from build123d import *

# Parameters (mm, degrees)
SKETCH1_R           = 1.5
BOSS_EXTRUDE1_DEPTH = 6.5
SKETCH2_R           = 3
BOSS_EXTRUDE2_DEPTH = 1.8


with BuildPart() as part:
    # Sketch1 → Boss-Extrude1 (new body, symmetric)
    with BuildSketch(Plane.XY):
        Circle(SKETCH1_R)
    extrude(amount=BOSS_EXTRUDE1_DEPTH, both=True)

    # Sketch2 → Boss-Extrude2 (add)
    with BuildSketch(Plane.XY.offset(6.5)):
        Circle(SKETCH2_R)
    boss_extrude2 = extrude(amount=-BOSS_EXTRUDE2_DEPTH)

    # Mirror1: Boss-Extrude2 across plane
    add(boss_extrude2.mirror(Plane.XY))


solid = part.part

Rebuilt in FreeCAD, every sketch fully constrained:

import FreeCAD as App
import Part
import Sketcher
Q = App.Units.Quantity

doc = App.newDocument("Part")
body = doc.addObject("PartDesign::Body", "Body")

# Sketch on XY plane
sketch1 = body.newObject("Sketcher::SketchObject", "Sketch")
sketch1.AttachmentSupport = (doc.getObject("XY_Plane"), [""])
sketch1.MapMode = "FlatFace"
sketch1.addGeometry(Part.Circle(App.Vector(0, 0, 0), App.Vector(0, 0, 1), 1.5), False)
sketch1.addConstraint([
    Sketcher.Constraint("Coincident", 0, 3, -1, 1),
    Sketcher.Constraint("Diameter", 0, Q("3 mm")),
])
pad1 = body.newObject("PartDesign::Pad", "Pad")
pad1.Profile = sketch1
pad1.Length = 13
pad1.Midplane = True

# Sketch on XY plane
sketch2 = body.newObject("Sketcher::SketchObject", "Sketch001")
sketch2.AttachmentSupport = (doc.getObject("XY_Plane"), [""])
sketch2.MapMode = "FlatFace"
sketch2.AttachmentOffset = App.Placement(App.Vector(0, 0, 6.5), App.Rotation())
sketch2.addGeometry(Part.Circle(App.Vector(0, 0, 0), App.Vector(0, 0, 1), 3), False)
sketch2.addConstraint([
    Sketcher.Constraint("Coincident", 0, 3, -1, 1),
    Sketcher.Constraint("Diameter", 0, Q("6 mm")),
])
pad2 = body.newObject("PartDesign::Pad", "Pad001")
pad2.Profile = sketch2
pad2.Length = 1.8
pad2.Reversed = True
doc.recompute()

mirrored = body.newObject("PartDesign::Mirrored", "Mirrored")
mirrored.Originals = [pad2]
mirrored.MirrorPlane = (doc.getObject("XY_Plane"), [""])
body.Tip = mirrored

doc.recompute()
